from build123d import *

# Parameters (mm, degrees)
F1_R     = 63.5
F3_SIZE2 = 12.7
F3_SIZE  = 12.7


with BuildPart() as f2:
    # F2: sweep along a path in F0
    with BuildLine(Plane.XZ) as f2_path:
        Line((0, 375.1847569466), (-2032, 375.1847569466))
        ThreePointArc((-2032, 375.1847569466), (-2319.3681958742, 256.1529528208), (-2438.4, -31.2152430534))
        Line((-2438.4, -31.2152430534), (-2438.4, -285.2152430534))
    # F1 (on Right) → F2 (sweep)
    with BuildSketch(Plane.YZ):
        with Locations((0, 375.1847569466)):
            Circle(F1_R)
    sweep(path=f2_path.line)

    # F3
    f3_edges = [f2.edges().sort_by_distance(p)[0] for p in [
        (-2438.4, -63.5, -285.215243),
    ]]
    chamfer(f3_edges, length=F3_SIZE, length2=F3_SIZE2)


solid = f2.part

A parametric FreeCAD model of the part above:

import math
import FreeCAD as App
import Part
import Sketcher
Q = App.Units.Quantity


def edges_at(feature, points):
    """Names of the edges that pass closest to the given points."""
    edges = feature.Shape.Edges
    near = lambda p: min(range(len(edges)), key=lambda i: edges[i].distToShape(Part.Vertex(*p))[0])
    return sorted({f"Edge{near(p) + 1}" for p in points})

doc = App.newDocument("Part")
body = doc.addObject("PartDesign::Body", "Body")

# Sketch on YZ plane
sketch1 = body.newObject("Sketcher::SketchObject", "Sketch")
sketch1.AttachmentSupport = (doc.getObject("YZ_Plane"), [""])
sketch1.MapMode = "FlatFace"
sketch1.addGeometry(Part.Circle(App.Vector(0, 375, 0), App.Vector(0, 0, 1), 64), False)
sketch1.addConstraint([
    Sketcher.Constraint("PointOnObject", 0, 3, -2),
    Sketcher.Constraint("Diameter", 0, Q("5 in")),
    Sketcher.Constraint("DistanceY", -1, 1, 0, 3, 375.184757),
])

# Sketch on XZ plane
sketch2 = body.newObject("Sketcher::SketchObject", "Sketch001")
sketch2.AttachmentSupport = (doc.getObject("XZ_Plane"), [""])
sketch2.MapMode = "FlatFace"
sketch2.addGeometry([
    Part.LineSegment(App.Vector(0, 375, 0), App.Vector(-2032, 375, 0)),
    Part.ArcOfCircle(Part.Circle(App.Vector(-2032, -31, 0), App.Vector(0, 0, 1), 406), math.radians(90), math.radians(180)),
    Part.LineSegment(App.Vector(-2438, -31, 0), App.Vector(-2438, -285, 0)),
], False)
sketch2.addConstraint([
    Sketcher.Constraint("Tangent", 0, 2, 1, 1),
    Sketcher.Constraint("Tangent", 1, 2, 2, 1),
    Sketcher.Constraint("Horizontal", 0),
    Sketcher.Constraint("Vertical", 2),
    Sketcher.Constraint("PointOnObject", 0, 1, -2),
    Sketcher.Constraint("Radius", 1, Q("16 in")),
    Sketcher.Constraint("DistanceX", 0, 2, 0, 1, Q("80 in")),
    Sketcher.Constraint("DistanceY", 2, 2, 2, 1, Q("10 in")),
    Sketcher.Constraint("DistanceY", 1, 3, -1, 1, 31.215243),
])
doc.recompute()

additivepipe = body.newObject("PartDesign::AdditivePipe", "AdditivePipe")
additivepipe.Profile = sketch1
additivepipe.Spine = (sketch2, ["Edge1", "Edge2", "Edge3"])
doc.recompute()

chamfer = body.newObject("PartDesign::Chamfer", "Chamfer")
chamfer.Base = (additivepipe, edges_at(additivepipe, [(-2438.4, -63.5, -285.215)]))
chamfer.ChamferType = "Two distances"
chamfer.Size = Q("0.5 in")
chamfer.Size2 = Q("0.5 in")

doc.recompute()
